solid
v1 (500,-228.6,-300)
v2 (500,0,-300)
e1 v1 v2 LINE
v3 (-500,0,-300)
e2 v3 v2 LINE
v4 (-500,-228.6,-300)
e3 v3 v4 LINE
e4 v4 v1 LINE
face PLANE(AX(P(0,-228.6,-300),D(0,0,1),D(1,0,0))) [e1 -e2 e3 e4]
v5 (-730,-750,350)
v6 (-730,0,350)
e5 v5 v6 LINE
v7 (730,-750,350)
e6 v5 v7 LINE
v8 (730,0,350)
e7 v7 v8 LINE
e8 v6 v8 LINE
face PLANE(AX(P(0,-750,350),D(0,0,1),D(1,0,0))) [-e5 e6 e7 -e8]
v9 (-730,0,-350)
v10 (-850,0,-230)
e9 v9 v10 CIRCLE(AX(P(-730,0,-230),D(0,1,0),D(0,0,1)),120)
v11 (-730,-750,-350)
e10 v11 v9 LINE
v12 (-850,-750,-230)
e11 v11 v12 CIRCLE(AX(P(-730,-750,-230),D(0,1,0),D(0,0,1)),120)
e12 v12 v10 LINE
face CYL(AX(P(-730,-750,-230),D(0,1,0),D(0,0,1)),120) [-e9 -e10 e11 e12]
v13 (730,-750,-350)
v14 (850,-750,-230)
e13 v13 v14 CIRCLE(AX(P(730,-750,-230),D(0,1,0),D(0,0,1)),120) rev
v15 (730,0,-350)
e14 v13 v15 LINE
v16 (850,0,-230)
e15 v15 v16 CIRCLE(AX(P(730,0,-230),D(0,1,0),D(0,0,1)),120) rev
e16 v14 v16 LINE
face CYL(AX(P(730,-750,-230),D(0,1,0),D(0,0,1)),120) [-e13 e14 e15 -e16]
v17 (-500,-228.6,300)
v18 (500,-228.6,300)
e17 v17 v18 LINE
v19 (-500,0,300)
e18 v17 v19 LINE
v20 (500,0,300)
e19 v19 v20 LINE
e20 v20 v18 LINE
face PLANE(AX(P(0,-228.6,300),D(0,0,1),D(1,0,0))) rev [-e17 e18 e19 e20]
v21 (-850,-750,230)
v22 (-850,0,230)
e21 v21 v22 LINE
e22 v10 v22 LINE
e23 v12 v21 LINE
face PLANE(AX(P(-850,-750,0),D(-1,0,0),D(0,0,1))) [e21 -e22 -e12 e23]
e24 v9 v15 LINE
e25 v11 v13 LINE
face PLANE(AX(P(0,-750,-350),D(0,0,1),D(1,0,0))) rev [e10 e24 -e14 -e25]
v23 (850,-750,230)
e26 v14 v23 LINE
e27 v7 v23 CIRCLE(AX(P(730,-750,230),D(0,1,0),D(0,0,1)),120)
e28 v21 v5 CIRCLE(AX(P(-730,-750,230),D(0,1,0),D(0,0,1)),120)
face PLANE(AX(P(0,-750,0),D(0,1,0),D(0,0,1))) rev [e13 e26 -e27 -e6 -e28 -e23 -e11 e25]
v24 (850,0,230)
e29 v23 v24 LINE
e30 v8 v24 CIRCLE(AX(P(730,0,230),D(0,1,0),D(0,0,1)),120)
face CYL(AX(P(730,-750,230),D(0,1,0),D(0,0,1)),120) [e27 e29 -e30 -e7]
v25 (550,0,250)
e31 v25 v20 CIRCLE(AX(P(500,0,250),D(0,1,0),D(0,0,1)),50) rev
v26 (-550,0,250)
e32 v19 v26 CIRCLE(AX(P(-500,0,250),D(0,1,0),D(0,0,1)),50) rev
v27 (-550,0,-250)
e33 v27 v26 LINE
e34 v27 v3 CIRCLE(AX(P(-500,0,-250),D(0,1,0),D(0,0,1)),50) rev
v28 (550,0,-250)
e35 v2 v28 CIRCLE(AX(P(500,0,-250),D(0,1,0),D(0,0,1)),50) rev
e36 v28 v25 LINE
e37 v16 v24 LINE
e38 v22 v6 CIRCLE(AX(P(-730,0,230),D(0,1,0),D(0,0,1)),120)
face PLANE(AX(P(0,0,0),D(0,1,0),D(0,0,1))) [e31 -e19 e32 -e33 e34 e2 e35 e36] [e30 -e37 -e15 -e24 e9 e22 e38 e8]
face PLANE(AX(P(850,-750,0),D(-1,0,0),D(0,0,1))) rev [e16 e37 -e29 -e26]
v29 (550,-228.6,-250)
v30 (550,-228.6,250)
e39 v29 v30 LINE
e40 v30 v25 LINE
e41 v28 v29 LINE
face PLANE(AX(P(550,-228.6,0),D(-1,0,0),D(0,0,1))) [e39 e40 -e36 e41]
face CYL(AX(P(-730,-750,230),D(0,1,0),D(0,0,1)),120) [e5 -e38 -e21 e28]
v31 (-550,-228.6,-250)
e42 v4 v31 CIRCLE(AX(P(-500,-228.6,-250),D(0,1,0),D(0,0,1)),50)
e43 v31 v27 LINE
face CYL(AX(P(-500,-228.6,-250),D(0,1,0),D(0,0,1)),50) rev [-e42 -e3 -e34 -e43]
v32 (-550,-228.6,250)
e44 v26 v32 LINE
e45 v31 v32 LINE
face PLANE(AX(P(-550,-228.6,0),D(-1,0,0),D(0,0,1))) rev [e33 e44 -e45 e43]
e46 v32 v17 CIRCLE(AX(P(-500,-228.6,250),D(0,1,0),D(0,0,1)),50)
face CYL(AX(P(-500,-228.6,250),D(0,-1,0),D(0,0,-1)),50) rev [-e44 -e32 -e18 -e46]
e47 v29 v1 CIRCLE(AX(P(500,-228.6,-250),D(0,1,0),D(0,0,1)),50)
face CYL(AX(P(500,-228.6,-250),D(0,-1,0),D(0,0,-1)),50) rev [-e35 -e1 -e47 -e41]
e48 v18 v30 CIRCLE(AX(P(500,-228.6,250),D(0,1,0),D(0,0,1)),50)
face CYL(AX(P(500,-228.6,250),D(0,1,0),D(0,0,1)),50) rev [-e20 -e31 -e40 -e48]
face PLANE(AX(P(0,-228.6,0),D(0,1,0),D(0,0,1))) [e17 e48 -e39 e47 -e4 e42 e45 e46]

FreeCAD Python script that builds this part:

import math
import FreeCAD as App
import Part
import Sketcher

V = App.Vector


def edges_at(feature, points):
    """Names of the edges that pass closest to the given points."""
    edges = feature.Shape.Edges
    near = lambda p: min(range(len(edges)), key=lambda i: edges[i].distToShape(Part.Vertex(*p))[0])
    return sorted({f"Edge{near(p) + 1}" for p in points})

doc = App.newDocument("Part")
body = doc.addObject("PartDesign::Body", "Body")

# Sketch on XZ plane
sketch1 = body.newObject("Sketcher::SketchObject", "Sketch")
sketch1.AttachmentSupport = (doc.getObject("XZ_Plane"), [""])
sketch1.MapMode = "FlatFace"
sketch1.addGeometry([
    Part.LineSegment(V(730, -350, 0), V(-730, -350, 0)),  # 0
    Part.ArcOfCircle(Part.Circle(V(-730, -230, 0), V(0, 0, 1), 120), math.radians(-180), math.radians(-90)),  # 1
    Part.LineSegment(V(-850, -230, 0), V(-850, 230, 0)),  # 2
    Part.ArcOfCircle(Part.Circle(V(-730, 230, 0), V(0, 0, 1), 120), math.radians(90), math.radians(180)),  # 3
    Part.LineSegment(V(-730, 350, 0), V(730, 350, 0)),  # 4
    Part.ArcOfCircle(Part.Circle(V(730, 230, 0), V(0, 0, 1), 120), math.radians(0), math.radians(90)),  # 5
    Part.LineSegment(V(850, 230, 0), V(850, -230, 0)),  # 6
    Part.ArcOfCircle(Part.Circle(V(730, -230, 0), V(0, 0, 1), 120), math.radians(-90), math.radians(0)),  # 7
], False)
sketch1.addConstraint([
    Sketcher.Constraint("Tangent", 0, 2, 1, 2),
    Sketcher.Constraint("Tangent", 1, 1, 2, 1),
    Sketcher.Constraint("Tangent", 2, 2, 3, 2),
    Sketcher.Constraint("Tangent", 3, 1, 4, 1),
    Sketcher.Constraint("Tangent", 4, 2, 5, 2),
    Sketcher.Constraint("Tangent", 5, 1, 6, 1),
    Sketcher.Constraint("Tangent", 6, 2, 7, 2),
    Sketcher.Constraint("Tangent", 7, 1, 0, 1),
    Sketcher.Constraint("Horizontal", 0),
    Sketcher.Constraint("Vertical", 2),
    Sketcher.Constraint("Horizontal", 4),
    Sketcher.Constraint("Vertical", 6),
    Sketcher.Constraint("Equal", 1, 3),
    Sketcher.Constraint("Equal", 3, 5),
    Sketcher.Constraint("Equal", 5, 7),
    Sketcher.Constraint("Symmetric", 1, 3, 5, 3, -1, 1),
    Sketcher.Constraint("Radius", 1, 120.0),
    Sketcher.Constraint("DistanceX", 0, 2, 0, 1, 1460.0),
    Sketcher.Constraint("DistanceY", 2, 1, 2, 2, 460.0),
])
pad1 = body.newObject("PartDesign::Pad", "Pad")
pad1.Profile = sketch1
pad1.Length = 750

# Sketch on XZ plane
sketch2 = body.newObject("Sketcher::SketchObject", "Sketch001")
sketch2.AttachmentSupport = (doc.getObject("XZ_Plane"), [""])
sketch2.MapMode = "FlatFace"
sketch2.addGeometry([
    Part.LineSegment(V(-550, -300, 0), V(-550, 300, 0)),
    Part.LineSegment(V(-550, 300, 0), V(550, 300, 0)),
    Part.LineSegment(V(550, 300, 0), V(550, -300, 0)),
    Part.LineSegment(V(550, -300, 0), V(-550, -300, 0)),
], False)
sketch2.addConstraint([
    Sketcher.Constraint("Coincident", 0, 2, 1, 1),
    Sketcher.Constraint("Coincident", 1, 2, 2, 1),
    Sketcher.Constraint("Coincident", 2, 2, 3, 1),
    Sketcher.Constraint("Coincident", 3, 2, 0, 1),
    Sketcher.Constraint("Vertical", 0),
    Sketcher.Constraint("Horizontal", 1),
    Sketcher.Constraint("Vertical", 2),
    Sketcher.Constraint("Horizontal", 3),
    Sketcher.Constraint("Symmetric", 0, 2, 2, 2, -1, 1),
    Sketcher.Constraint("DistanceX", 1, 1, 1, 2, 1100.0),
    Sketcher.Constraint("DistanceY", 0, 1, 0, 2, 600.0),
])
pocket1 = body.newObject("PartDesign::Pocket", "Pocket")
pocket1.Profile = sketch2
pocket1.Length = 228.6
pocket1.Reversed = True
doc.recompute()

fillet = body.newObject("PartDesign::Fillet", "Fillet")
fillet.Base = (pocket1, edges_at(pocket1, [
    (550, -114.3, -300),
    (550, -114.3, 300),
    (-550, -114.3, 300),
    (-550, -114.3, -300),
]))
fillet.Radius = 50

doc.recompute()
